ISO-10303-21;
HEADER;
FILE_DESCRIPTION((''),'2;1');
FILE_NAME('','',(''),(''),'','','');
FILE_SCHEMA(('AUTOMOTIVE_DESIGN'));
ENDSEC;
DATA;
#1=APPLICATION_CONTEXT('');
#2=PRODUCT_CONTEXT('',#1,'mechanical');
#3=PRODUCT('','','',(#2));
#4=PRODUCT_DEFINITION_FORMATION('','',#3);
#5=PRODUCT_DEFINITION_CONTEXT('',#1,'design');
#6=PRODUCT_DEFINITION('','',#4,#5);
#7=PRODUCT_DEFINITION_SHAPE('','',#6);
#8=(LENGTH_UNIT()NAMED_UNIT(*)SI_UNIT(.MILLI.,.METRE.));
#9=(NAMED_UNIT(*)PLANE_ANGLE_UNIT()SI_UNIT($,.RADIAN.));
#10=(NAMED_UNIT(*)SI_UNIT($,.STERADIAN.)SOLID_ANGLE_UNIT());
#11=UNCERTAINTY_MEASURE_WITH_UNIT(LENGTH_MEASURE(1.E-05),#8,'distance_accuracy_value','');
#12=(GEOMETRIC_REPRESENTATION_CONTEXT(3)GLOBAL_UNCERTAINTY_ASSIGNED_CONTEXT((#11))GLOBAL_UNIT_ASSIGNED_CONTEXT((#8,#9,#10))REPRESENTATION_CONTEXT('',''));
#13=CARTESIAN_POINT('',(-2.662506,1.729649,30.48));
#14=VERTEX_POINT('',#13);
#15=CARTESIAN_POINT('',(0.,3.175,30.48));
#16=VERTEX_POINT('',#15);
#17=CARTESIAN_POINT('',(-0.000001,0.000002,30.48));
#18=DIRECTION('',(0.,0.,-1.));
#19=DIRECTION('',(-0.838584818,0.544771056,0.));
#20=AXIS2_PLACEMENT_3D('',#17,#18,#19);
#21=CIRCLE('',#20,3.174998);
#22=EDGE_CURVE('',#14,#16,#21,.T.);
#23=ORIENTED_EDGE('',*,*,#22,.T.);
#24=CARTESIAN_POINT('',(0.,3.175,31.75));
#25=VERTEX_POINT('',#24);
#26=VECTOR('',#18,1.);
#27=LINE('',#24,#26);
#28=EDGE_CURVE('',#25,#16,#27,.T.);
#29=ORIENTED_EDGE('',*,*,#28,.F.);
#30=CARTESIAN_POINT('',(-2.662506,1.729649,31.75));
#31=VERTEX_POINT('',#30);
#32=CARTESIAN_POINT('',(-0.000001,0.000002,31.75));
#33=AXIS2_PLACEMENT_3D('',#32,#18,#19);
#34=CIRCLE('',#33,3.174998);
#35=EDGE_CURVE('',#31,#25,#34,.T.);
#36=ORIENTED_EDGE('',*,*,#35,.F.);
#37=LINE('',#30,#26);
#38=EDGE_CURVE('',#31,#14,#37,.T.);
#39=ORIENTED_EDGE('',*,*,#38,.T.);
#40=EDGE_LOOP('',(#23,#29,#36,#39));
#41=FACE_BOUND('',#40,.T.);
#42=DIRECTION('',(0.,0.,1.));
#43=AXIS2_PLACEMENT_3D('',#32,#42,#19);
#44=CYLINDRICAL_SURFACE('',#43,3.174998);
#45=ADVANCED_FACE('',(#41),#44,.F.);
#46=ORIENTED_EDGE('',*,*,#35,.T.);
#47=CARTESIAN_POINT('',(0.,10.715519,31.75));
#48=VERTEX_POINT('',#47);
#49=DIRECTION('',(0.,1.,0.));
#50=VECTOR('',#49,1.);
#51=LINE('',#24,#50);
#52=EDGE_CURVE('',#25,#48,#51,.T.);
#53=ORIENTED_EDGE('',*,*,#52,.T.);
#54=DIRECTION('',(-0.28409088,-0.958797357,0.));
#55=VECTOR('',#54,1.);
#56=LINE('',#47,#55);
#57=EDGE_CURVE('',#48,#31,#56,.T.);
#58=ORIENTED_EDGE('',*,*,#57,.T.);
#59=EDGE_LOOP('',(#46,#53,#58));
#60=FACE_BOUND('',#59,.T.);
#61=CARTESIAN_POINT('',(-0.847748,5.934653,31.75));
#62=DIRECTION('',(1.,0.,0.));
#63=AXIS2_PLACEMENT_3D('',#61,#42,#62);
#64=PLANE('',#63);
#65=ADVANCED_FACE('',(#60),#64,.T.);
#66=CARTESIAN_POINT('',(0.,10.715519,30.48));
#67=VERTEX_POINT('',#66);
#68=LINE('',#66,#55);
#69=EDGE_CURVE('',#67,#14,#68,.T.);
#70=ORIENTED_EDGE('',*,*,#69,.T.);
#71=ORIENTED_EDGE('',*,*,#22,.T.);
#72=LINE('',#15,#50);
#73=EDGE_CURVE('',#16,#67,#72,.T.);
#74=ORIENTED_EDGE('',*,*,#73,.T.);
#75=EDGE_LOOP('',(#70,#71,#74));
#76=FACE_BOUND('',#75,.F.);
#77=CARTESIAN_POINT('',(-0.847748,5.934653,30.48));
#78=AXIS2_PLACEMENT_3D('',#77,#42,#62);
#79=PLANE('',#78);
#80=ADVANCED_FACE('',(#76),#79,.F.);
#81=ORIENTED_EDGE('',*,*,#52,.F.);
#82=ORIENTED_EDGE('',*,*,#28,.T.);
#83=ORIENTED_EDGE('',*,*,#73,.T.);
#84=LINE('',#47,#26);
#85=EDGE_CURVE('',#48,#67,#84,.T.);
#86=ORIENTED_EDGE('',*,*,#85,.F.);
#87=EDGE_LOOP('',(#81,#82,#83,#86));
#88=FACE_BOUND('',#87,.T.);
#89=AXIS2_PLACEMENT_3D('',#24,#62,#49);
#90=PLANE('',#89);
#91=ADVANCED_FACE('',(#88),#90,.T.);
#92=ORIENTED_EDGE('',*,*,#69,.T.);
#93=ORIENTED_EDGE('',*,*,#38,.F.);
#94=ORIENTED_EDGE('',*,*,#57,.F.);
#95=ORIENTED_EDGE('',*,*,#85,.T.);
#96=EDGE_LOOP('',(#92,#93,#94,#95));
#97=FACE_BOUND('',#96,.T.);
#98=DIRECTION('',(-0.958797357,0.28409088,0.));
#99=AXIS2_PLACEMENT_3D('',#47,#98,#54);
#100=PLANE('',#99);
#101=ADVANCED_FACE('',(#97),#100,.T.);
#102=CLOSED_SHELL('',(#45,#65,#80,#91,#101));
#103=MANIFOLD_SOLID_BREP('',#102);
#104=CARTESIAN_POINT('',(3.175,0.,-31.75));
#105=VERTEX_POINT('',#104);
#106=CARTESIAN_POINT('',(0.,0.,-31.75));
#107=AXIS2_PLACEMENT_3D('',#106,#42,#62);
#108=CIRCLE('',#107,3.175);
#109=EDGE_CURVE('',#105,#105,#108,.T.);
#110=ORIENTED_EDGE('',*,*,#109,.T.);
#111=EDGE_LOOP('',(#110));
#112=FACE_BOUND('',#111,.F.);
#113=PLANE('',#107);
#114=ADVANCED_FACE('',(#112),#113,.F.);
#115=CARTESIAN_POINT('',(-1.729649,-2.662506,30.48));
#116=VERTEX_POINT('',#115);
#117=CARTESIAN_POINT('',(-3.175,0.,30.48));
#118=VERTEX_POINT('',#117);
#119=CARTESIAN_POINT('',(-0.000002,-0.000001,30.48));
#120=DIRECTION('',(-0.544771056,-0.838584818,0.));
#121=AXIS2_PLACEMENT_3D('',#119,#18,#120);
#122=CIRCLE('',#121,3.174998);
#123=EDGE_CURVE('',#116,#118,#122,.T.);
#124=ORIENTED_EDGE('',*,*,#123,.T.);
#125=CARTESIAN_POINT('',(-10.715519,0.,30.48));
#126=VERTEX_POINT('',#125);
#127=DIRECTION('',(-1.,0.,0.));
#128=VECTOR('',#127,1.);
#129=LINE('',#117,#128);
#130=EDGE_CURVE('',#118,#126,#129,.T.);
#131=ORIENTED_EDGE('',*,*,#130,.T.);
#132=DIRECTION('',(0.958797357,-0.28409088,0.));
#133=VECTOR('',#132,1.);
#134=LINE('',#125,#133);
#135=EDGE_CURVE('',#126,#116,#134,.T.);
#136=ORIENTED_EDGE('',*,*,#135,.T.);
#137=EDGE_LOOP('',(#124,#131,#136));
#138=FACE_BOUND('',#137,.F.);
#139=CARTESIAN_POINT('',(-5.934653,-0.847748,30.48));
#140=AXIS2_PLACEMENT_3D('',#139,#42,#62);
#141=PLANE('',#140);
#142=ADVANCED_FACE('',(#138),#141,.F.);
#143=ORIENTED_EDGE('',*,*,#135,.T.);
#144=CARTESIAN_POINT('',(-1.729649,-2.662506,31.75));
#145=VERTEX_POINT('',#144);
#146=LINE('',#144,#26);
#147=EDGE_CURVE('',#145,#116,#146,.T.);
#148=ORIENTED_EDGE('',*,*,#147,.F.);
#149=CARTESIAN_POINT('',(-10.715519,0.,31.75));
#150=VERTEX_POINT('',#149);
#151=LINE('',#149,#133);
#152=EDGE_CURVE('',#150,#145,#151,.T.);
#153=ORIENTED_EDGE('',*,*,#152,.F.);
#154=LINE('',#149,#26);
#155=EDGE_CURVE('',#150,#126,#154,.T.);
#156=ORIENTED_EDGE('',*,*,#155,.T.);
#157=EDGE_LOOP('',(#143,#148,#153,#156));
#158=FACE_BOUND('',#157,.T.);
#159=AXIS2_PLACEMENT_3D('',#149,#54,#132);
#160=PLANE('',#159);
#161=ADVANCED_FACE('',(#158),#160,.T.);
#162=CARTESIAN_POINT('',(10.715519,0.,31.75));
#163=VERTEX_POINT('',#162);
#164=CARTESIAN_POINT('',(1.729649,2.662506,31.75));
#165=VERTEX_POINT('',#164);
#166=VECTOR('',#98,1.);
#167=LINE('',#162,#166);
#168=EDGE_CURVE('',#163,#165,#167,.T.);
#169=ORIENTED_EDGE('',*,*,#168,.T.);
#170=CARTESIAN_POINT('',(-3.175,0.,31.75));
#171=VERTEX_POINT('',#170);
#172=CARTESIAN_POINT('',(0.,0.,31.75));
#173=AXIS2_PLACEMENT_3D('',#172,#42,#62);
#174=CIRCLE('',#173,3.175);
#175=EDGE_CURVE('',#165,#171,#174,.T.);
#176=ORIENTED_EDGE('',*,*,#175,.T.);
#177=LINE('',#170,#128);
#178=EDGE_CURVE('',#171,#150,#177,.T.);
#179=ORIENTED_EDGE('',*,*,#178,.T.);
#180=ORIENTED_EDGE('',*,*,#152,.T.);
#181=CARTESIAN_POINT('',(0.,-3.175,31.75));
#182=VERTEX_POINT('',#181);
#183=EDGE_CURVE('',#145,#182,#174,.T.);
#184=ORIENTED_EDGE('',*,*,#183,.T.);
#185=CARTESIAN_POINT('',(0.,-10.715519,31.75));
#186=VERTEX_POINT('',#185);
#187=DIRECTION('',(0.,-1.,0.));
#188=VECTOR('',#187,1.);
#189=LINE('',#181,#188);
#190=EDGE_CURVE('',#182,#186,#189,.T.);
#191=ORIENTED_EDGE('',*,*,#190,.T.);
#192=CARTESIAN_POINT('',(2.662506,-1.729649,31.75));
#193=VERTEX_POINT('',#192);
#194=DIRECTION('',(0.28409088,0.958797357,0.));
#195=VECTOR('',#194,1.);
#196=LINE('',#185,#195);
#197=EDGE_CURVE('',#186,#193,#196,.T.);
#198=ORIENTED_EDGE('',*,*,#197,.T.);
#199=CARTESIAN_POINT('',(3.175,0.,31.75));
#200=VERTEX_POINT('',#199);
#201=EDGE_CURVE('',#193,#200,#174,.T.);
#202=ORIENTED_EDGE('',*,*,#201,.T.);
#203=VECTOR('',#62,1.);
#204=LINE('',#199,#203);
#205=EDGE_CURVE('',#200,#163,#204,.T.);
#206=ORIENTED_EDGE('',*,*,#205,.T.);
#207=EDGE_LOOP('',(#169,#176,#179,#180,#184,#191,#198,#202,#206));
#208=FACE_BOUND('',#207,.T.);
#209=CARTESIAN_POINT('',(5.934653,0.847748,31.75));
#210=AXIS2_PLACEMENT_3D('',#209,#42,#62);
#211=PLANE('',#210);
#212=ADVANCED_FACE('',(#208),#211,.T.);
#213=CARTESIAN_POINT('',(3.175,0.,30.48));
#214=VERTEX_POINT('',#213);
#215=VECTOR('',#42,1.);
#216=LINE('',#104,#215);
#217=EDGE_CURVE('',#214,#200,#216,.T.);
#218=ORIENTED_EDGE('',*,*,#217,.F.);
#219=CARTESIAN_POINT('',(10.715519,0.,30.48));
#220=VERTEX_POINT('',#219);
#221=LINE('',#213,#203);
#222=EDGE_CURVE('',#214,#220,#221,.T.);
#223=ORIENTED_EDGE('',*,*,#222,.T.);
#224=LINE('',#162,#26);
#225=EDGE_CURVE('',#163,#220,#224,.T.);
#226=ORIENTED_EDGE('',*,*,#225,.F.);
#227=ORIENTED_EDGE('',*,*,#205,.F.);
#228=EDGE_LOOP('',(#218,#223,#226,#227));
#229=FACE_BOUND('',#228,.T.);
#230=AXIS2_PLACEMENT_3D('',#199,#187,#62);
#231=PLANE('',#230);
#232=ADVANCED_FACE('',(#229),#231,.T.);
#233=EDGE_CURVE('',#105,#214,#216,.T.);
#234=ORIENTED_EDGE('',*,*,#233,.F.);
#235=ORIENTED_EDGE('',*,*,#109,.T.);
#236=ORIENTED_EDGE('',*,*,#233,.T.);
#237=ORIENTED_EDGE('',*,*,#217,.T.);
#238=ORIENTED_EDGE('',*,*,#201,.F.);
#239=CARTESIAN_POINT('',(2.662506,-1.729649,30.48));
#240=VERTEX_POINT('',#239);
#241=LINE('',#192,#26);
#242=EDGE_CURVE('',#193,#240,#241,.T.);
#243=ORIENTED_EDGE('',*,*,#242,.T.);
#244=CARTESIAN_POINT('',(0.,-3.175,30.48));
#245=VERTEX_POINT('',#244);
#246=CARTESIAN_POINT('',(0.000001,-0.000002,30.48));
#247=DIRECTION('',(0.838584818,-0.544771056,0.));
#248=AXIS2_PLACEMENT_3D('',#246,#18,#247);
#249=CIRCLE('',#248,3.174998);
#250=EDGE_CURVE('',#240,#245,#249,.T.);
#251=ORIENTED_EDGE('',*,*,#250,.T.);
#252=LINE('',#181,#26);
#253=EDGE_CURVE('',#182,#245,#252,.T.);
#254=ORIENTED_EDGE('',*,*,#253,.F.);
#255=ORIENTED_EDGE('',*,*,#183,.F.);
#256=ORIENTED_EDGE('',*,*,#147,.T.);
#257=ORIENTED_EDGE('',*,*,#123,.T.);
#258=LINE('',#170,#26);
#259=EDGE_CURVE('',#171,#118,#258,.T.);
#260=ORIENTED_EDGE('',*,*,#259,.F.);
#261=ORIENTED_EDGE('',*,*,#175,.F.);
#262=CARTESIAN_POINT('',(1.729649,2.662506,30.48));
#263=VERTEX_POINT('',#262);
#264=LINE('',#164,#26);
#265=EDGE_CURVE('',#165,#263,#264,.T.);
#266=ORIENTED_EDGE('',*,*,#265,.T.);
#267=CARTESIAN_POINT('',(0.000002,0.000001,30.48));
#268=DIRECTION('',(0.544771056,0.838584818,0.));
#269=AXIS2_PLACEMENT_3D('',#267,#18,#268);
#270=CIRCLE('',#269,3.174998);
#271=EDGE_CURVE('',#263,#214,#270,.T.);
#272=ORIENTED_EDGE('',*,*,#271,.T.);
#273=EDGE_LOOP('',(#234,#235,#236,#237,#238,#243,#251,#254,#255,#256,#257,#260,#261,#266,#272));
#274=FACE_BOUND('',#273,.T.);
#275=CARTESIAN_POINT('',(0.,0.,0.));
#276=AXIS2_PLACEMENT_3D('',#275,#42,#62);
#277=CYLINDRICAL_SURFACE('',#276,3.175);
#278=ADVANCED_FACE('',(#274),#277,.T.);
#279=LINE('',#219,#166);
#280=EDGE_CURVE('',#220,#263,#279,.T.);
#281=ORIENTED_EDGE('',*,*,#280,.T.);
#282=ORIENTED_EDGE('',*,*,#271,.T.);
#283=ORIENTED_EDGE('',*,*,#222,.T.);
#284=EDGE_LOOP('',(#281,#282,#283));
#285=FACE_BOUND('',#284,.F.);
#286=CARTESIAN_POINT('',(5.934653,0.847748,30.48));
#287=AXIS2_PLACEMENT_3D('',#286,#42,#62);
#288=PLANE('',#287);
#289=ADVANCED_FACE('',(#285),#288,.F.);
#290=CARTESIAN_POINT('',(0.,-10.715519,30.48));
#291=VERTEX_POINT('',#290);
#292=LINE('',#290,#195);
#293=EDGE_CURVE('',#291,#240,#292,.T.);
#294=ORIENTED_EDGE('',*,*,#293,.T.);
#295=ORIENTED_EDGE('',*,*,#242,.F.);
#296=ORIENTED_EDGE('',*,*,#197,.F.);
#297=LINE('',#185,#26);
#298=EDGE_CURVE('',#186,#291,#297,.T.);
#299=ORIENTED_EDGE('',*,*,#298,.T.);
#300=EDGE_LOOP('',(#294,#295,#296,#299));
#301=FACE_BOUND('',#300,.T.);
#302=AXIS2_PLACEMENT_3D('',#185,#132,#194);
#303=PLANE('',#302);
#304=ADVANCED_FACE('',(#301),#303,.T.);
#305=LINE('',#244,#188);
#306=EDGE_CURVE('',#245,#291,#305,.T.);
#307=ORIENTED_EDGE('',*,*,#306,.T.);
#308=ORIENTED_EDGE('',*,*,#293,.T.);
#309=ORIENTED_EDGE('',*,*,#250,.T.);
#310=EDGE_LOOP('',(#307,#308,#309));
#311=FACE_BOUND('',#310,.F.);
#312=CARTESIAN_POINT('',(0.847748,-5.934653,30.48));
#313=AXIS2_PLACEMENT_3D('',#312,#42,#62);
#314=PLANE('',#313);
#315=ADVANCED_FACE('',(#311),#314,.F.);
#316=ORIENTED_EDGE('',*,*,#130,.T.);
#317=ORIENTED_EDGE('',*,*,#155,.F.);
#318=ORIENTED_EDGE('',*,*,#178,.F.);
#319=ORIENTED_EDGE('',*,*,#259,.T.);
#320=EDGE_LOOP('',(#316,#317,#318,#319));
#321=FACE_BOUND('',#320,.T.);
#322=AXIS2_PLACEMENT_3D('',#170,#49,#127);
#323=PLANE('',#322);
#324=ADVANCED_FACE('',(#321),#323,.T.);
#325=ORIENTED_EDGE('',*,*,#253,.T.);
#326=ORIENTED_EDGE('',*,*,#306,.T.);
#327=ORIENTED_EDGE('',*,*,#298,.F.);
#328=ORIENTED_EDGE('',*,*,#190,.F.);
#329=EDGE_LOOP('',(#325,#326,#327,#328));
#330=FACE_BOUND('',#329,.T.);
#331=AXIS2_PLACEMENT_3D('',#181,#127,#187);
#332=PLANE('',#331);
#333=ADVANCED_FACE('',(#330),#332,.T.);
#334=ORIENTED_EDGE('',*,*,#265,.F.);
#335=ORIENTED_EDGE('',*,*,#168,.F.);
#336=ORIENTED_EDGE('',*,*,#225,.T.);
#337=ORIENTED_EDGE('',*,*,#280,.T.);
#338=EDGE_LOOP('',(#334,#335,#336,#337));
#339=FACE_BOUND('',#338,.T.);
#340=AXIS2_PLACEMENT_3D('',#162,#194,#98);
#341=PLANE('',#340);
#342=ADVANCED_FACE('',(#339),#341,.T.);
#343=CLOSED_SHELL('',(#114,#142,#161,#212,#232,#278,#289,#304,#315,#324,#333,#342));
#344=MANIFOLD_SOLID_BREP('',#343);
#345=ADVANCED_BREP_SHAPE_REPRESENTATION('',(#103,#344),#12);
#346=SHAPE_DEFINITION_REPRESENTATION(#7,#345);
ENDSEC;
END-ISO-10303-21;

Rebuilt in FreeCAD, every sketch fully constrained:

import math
import FreeCAD as App
import Part
import Sketcher
from FreeCAD import Vector
Q = App.Units.Quantity

doc = App.newDocument("Part")
body = doc.addObject("PartDesign::Body", "Body")

sketch1 = body.newObject("Sketcher::SketchObject", "Sketch")
sketch1.AttachmentSupport = (doc.getObject("XY_Plane"), [""])
sketch1.MapMode = "FlatFace"
sketch1.addGeometry(Part.Circle(Vector(0, 0, 0), Vector(0, 0, 1), 3.2), False)
sketch1.addConstraint([
    Sketcher.Constraint("Coincident", 0, 3, -1, 1),
    Sketcher.Constraint("Diameter", 0, Q("0.25 in")),
])
pad1 = body.newObject("PartDesign::Pad", "Pad")
pad1.Profile = sketch1
pad1.Type = "TwoLengths"
pad1.Length = Q("1.25 in")
pad1.Length2 = Q("1.25 in")

sketch2 = body.newObject("Sketcher::SketchObject", "Sketch001")
sketch2.AttachmentSupport = (doc.getObject("XY_Plane"), [""])
sketch2.MapMode = "FlatFace"
sketch2.AttachmentOffset = App.Placement(Vector(0, 0, 1.25 * 25.4), App.Rotation())
sketch2.addGeometry([
    Part.ArcOfCircle(Part.Circle(Vector(0, 0, 0), Vector(0, 0, 1), 3.2), math.radians(180), math.radians(237)),
    Part.LineSegment(Vector(-3.2, 0, 0), Vector(-10.7, 0, 0)),
    Part.LineSegment(Vector(-10.7, 0, 0), Vector(-1.7, -2.7, 0)),
], False)
sketch2.addConstraint([
    Sketcher.Constraint("Coincident", 0, 1, 1, 1),
    Sketcher.Constraint("Coincident", 1, 2, 2, 1),
    Sketcher.Constraint("Coincident", 2, 2, 0, 2),
    Sketcher.Constraint("Horizontal", 1),
    Sketcher.Constraint("Coincident", 0, 3, -1, 1),
    Sketcher.Constraint("PointOnObject", 0, 1, -1),
    Sketcher.Constraint("Radius", 0, Q("0.1249999 in")),
    Sketcher.Constraint("DistanceX", 1, 2, 1, 1, Q("7.540519 mm")),
    Sketcher.Constraint("DistanceX", 2, 2, -1, 1, Q("1.729649 mm")),
])
pad2 = body.newObject("PartDesign::Pad", "Pad001")
pad2.Profile = sketch2
pad2.Length = Q("0.05 in")
pad2.Reversed = True

sketch3 = body.newObject("Sketcher::SketchObject", "Sketch002")
sketch3.AttachmentSupport = (doc.getObject("XY_Plane"), [""])
sketch3.MapMode = "FlatFace"
sketch3.AttachmentOffset = App.Placement(Vector(0, 0, 1.25 * 25.4), App.Rotation())
sketch3.addGeometry([
    Part.ArcOfCircle(Part.Circle(Vector(0, 0, 0), Vector(0, 0, 1), 3.2), math.radians(-90), math.radians(-33)),
    Part.LineSegment(Vector(0, -3.2, 0), Vector(0, -10.7, 0)),
    Part.LineSegment(Vector(0, -10.7, 0), Vector(2.7, -1.7, 0)),
], False)
sketch3.addConstraint([
    Sketcher.Constraint("Coincident", 0, 1, 1, 1),
    Sketcher.Constraint("Coincident", 1, 2, 2, 1),
    Sketcher.Constraint("Coincident", 2, 2, 0, 2),
    Sketcher.Constraint("Vertical", 1),
    Sketcher.Constraint("Coincident", 0, 3, -1, 1),
    Sketcher.Constraint("PointOnObject", 0, 1, -2),
    Sketcher.Constraint("Radius", 0, Q("0.1249999 in")),
    Sketcher.Constraint("DistanceY", 1, 2, 1, 1, Q("7.540519 mm")),
    Sketcher.Constraint("DistanceY", 2, 2, -1, 1, Q("1.729649 mm")),
])
pad3 = body.newObject("PartDesign::Pad", "Pad002")
pad3.Profile = sketch3
pad3.Length = Q("0.05 in")
pad3.Reversed = True

sketch4 = body.newObject("Sketcher::SketchObject", "Sketch003")
sketch4.AttachmentSupport = (doc.getObject("XY_Plane"), [""])
sketch4.MapMode = "FlatFace"
sketch4.AttachmentOffset = App.Placement(Vector(0, 0, 1.25 * 25.4), App.Rotation())
sketch4.addGeometry([
    Part.LineSegment(Vector(10.7, 0, 0), Vector(1.7, 2.7, 0)),
    Part.ArcOfCircle(Part.Circle(Vector(0, 0, 0), Vector(0, 0, 1), 3.2), math.radians(0), math.radians(57)),
    Part.LineSegment(Vector(3.2, 0, 0), Vector(10.7, 0, 0)),
], False)
sketch4.addConstraint([
    Sketcher.Constraint("Coincident", 0, 2, 1, 2),
    Sketcher.Constraint("Coincident", 1, 1, 2, 1),
    Sketcher.Constraint("Coincident", 2, 2, 0, 1),
    Sketcher.Constraint("Horizontal", 2),
    Sketcher.Constraint("Coincident", 1, 3, -1, 1),
    Sketcher.Constraint("PointOnObject", 1, 1, -1),
    Sketcher.Constraint("Radius", 1, Q("0.1249999 in")),
    Sketcher.Constraint("DistanceX", 2, 1, 2, 2, Q("7.540519 mm")),
    Sketcher.Constraint("DistanceX", -1, 1, 0, 2, Q("1.729649 mm")),
])
pad4 = body.newObject("PartDesign::Pad", "Pad003")
pad4.Profile = sketch4
pad4.Length = Q("0.05 in")
pad4.Reversed = True
body2 = doc.addObject("PartDesign::Body", "Body001")

sketch5 = body2.newObject("Sketcher::SketchObject", "Sketch004")
sketch5.AttachmentSupport = (doc.getObject("XY_Plane001"), [""])
sketch5.MapMode = "FlatFace"
sketch5.AttachmentOffset = App.Placement(Vector(0, 0, 1.25 * 25.4), App.Rotation())
sketch5.addGeometry([
    Part.LineSegment(Vector(0, 10.7, 0), Vector(-2.7, 1.7, 0)),
    Part.ArcOfCircle(Part.Circle(Vector(0, 0, 0), Vector(0, 0, 1), 3.2), math.radians(90), math.radians(147)),
    Part.LineSegment(Vector(0, 3.2, 0), Vector(0, 10.7, 0)),
], False)
sketch5.addConstraint([
    Sketcher.Constraint("Coincident", 0, 2, 1, 2),
    Sketcher.Constraint("Coincident", 1, 1, 2, 1),
    Sketcher.Constraint("Coincident", 2, 2, 0, 1),
    Sketcher.Constraint("Vertical", 2),
    Sketcher.Constraint("Coincident", 1, 3, -1, 1),
    Sketcher.Constraint("PointOnObject", 1, 1, -2),
    Sketcher.Constraint("Radius", 1, Q("0.1249999 in")),
    Sketcher.Constraint("DistanceY", 2, 1, 2, 2, Q("7.540519 mm")),
    Sketcher.Constraint("DistanceY", -1, 1, 0, 2, Q("1.729649 mm")),
])
pad5 = body2.newObject("PartDesign::Pad", "Pad004")
pad5.Profile = sketch5
pad5.Length = Q("0.05 in")
pad5.Reversed = True

doc.recompute()
